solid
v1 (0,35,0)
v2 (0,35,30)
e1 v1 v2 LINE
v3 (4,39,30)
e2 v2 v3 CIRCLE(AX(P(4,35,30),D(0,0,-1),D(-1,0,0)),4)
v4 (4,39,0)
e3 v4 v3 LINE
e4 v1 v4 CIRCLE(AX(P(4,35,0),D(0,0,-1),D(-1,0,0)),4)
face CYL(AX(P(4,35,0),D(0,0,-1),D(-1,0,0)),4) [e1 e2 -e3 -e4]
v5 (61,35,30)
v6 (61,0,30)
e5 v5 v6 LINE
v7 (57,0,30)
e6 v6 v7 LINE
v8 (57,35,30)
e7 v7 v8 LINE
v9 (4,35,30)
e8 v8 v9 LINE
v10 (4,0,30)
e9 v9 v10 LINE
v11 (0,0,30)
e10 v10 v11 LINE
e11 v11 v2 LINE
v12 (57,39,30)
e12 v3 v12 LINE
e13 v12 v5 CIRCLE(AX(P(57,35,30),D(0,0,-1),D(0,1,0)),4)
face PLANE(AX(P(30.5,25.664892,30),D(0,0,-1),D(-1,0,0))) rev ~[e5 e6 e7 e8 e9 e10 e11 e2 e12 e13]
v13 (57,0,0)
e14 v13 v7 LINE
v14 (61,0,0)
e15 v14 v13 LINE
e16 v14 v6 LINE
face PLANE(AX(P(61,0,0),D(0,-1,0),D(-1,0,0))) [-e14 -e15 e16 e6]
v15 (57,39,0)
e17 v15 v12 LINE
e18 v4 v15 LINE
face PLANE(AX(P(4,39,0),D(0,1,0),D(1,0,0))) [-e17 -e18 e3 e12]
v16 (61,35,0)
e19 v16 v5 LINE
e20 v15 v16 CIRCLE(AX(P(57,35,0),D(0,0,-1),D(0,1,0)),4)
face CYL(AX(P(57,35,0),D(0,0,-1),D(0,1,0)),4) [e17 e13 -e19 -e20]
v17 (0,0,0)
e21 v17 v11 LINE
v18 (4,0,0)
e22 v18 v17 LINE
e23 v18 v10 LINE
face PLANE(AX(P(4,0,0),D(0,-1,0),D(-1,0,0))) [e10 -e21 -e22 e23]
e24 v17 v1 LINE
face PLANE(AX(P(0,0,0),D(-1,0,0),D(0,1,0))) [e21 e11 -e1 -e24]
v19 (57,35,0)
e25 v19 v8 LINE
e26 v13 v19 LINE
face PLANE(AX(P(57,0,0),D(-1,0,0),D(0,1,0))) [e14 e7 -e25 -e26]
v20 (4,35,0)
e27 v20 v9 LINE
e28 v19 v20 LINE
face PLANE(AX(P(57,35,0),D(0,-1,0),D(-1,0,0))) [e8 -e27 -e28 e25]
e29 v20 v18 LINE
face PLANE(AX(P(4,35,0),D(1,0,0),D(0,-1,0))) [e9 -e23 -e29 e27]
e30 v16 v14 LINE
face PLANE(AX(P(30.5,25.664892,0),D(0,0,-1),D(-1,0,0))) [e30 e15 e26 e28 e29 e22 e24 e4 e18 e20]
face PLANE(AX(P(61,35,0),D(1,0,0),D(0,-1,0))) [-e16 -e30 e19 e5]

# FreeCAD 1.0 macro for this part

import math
import FreeCAD as App
import Part
import Sketcher
from FreeCAD import Vector

doc = App.newDocument("Part")
body = doc.addObject("PartDesign::Body", "Body")

# Sketch on XY plane
sketch1 = doc.addObject("Sketcher::SketchObject", "Sketch")
body.addObject(sketch1)
sketch1.AttachmentSupport = (doc.XY_Plane, [""])
sketch1.MapMode = "FlatFace"
sketch1.addGeometry([
    Part.LineSegment(Vector(0, 35, 0), Vector(0, 0, 0)),  # 0
    Part.LineSegment(Vector(0, 0, 0), Vector(4, 0, 0)),  # 1
    Part.LineSegment(Vector(4, 0, 0), Vector(4, 35, 0)),  # 2
    Part.LineSegment(Vector(4, 35, 0), Vector(57, 35, 0)),  # 3
    Part.LineSegment(Vector(57, 35, 0), Vector(57, 0, 0)),  # 4
    Part.LineSegment(Vector(57, 0, 0), Vector(61, 0, 0)),  # 5
    Part.LineSegment(Vector(61, 0, 0), Vector(61, 35, 0)),  # 6
    Part.ArcOfCircle(Part.Circle(Vector(57, 35, 0), Vector(0, 0, 1), 4), math.radians(0), math.radians(90)),  # 7
    Part.LineSegment(Vector(57, 39, 0), Vector(4, 39, 0)),  # 8
    Part.ArcOfCircle(Part.Circle(Vector(4, 35, 0), Vector(0, 0, 1), 4), math.radians(90), math.radians(180)),  # 9
], False)
sketch1.addConstraint([
    Sketcher.Constraint("Coincident", 0, 2, 1, 1),
    Sketcher.Constraint("Coincident", 1, 2, 2, 1),
    Sketcher.Constraint("Coincident", 2, 2, 3, 1),
    Sketcher.Constraint("Coincident", 3, 2, 4, 1),
    Sketcher.Constraint("Coincident", 4, 2, 5, 1),
    Sketcher.Constraint("Coincident", 5, 2, 6, 1),
    Sketcher.Constraint("Tangent", 6, 2, 7, 1),
    Sketcher.Constraint("Tangent", 7, 2, 8, 1),
    Sketcher.Constraint("Tangent", 8, 2, 9, 1),
    Sketcher.Constraint("Tangent", 9, 2, 0, 1),
    Sketcher.Constraint("Vertical", 0),
    Sketcher.Constraint("Horizontal", 1),
    Sketcher.Constraint("Vertical", 2),
    Sketcher.Constraint("Horizontal", 3),
    Sketcher.Constraint("Vertical", 4),
    Sketcher.Constraint("Horizontal", 5),
    Sketcher.Constraint("Vertical", 6),
    Sketcher.Constraint("Horizontal", 8),
    Sketcher.Constraint("Coincident", 0, 2, -1, 1),
    Sketcher.Constraint("Coincident", 2, 2, 9, 3),
    Sketcher.Constraint("Coincident", 3, 2, 7, 3),
    Sketcher.Constraint("PointOnObject", 4, 2, -1),
    Sketcher.Constraint("Radius", 7, 4.0),
    Sketcher.Constraint("DistanceX", 3, 1, 3, 2, 53.0),
    Sketcher.Constraint("DistanceY", 0, 2, 0, 1, 35.0),
])
pad1 = doc.addObject("PartDesign::Pad", "Pad")
body.addObject(pad1)
pad1.Profile = sketch1
pad1.Length = 30

doc.recompute()
